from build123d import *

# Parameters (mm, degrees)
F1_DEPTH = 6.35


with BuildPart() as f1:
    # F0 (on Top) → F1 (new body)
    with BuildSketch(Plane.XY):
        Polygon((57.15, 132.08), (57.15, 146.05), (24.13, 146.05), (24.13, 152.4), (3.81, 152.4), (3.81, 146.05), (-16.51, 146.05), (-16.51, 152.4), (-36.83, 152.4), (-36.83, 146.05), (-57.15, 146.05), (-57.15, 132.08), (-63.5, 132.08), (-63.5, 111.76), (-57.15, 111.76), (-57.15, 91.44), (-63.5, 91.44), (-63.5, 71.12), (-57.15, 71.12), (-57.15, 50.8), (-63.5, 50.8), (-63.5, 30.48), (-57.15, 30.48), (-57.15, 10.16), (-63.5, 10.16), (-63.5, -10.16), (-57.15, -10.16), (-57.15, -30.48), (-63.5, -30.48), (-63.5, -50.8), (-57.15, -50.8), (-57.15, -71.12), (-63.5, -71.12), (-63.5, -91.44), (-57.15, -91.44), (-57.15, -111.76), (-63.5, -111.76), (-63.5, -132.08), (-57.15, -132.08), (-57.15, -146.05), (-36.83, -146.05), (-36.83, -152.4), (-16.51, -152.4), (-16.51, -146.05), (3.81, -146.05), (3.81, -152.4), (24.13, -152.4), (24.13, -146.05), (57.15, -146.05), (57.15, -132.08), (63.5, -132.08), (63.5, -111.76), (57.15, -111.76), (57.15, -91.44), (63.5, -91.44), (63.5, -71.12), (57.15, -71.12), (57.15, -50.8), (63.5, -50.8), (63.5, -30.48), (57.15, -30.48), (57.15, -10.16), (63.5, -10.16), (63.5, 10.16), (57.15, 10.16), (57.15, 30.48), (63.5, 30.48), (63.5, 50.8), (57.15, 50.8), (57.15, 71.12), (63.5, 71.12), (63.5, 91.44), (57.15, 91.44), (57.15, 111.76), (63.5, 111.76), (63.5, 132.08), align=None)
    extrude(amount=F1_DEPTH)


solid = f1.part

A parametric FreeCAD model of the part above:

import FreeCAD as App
import Part
import Sketcher
from FreeCAD import Vector
Q = App.Units.Quantity

doc = App.newDocument("Part")
body = doc.addObject("PartDesign::Body", "Body")

# Sketch on XY plane
sketch1 = body.newObject("Sketcher::SketchObject", "Sketch")
sketch1.AttachmentSupport = (doc.getObject("XY_Plane"), [""])
sketch1.MapMode = "FlatFace"
sketch1.addGeometry([
    Part.LineSegment(Vector(57, 132, 0), Vector(57, 146, 0)),  # 0
    Part.LineSegment(Vector(57, 146, 0), Vector(24, 146, 0)),  # 1
    Part.LineSegment(Vector(24, 146, 0), Vector(24, 152, 0)),  # 2
    Part.LineSegment(Vector(24, 152, 0), Vector(4, 152, 0)),  # 3
    Part.LineSegment(Vector(4, 152, 0), Vector(4, 146, 0)),  # 4
    Part.LineSegment(Vector(4, 146, 0), Vector(-17, 146, 0)),  # 5
    Part.LineSegment(Vector(-17, 146, 0), Vector(-17, 152, 0)),  # 6
    Part.LineSegment(Vector(-17, 152, 0), Vector(-37, 152, 0)),  # 7
    Part.LineSegment(Vector(-37, 152, 0), Vector(-37, 146, 0)),  # 8
    Part.LineSegment(Vector(-37, 146, 0), Vector(-57, 146, 0)),  # 9
    Part.LineSegment(Vector(-57, 146, 0), Vector(-57, 132, 0)),  # 10
    Part.LineSegment(Vector(-57, 132, 0), Vector(-64, 132, 0)),  # 11
    Part.LineSegment(Vector(-64, 132, 0), Vector(-64, 112, 0)),  # 12
    Part.LineSegment(Vector(-64, 112, 0), Vector(-57, 112, 0)),  # 13
    Part.LineSegment(Vector(-57, 112, 0), Vector(-57, 91, 0)),  # 14
    Part.LineSegment(Vector(-57, 91, 0), Vector(-64, 91, 0)),  # 15
    Part.LineSegment(Vector(-64, 91, 0), Vector(-64, 71, 0)),  # 16
    Part.LineSegment(Vector(-64, 71, 0), Vector(-57, 71, 0)),  # 17
    Part.LineSegment(Vector(-57, 71, 0), Vector(-57, 51, 0)),  # 18
    Part.LineSegment(Vector(-57, 51, 0), Vector(-64, 51, 0)),  # 19
    Part.LineSegment(Vector(-64, 51, 0), Vector(-64, 30, 0)),  # 20
    Part.LineSegment(Vector(-64, 30, 0), Vector(-57, 30, 0)),  # 21
    Part.LineSegment(Vector(-57, 30, 0), Vector(-57, 10, 0)),  # 22
    Part.LineSegment(Vector(-57, 10, 0), Vector(-64, 10, 0)),  # 23
    Part.LineSegment(Vector(-64, 10, 0), Vector(-64, -10, 0)),  # 24
    Part.LineSegment(Vector(-64, -10, 0), Vector(-57, -10, 0)),  # 25
    Part.LineSegment(Vector(-57, -10, 0), Vector(-57, -30, 0)),  # 26
    Part.LineSegment(Vector(-57, -30, 0), Vector(-64, -30, 0)),  # 27
    Part.LineSegment(Vector(-64, -30, 0), Vector(-64, -51, 0)),  # 28
    Part.LineSegment(Vector(-64, -51, 0), Vector(-57, -51, 0)),  # 29
    Part.LineSegment(Vector(-57, -51, 0), Vector(-57, -71, 0)),  # 30
    Part.LineSegment(Vector(-57, -71, 0), Vector(-64, -71, 0)),  # 31
    Part.LineSegment(Vector(-64, -71, 0), Vector(-64, -91, 0)),  # 32
    Part.LineSegment(Vector(-64, -91, 0), Vector(-57, -91, 0)),  # 33
    Part.LineSegment(Vector(-57, -91, 0), Vector(-57, -112, 0)),  # 34
    Part.LineSegment(Vector(-57, -112, 0), Vector(-64, -112, 0)),  # 35
    Part.LineSegment(Vector(-64, -112, 0), Vector(-64, -132, 0)),  # 36
    Part.LineSegment(Vector(-64, -132, 0), Vector(-57, -132, 0)),  # 37
    Part.LineSegment(Vector(-57, -132, 0), Vector(-57, -146, 0)),  # 38
    Part.LineSegment(Vector(-57, -146, 0), Vector(-37, -146, 0)),  # 39
    Part.LineSegment(Vector(-37, -146, 0), Vector(-37, -152, 0)),  # 40
    Part.LineSegment(Vector(-37, -152, 0), Vector(-17, -152, 0)),  # 41
    Part.LineSegment(Vector(-17, -152, 0), Vector(-17, -146, 0)),  # 42
    Part.LineSegment(Vector(-17, -146, 0), Vector(4, -146, 0)),  # 43
    Part.LineSegment(Vector(4, -146, 0), Vector(4, -152, 0)),  # 44
    Part.LineSegment(Vector(4, -152, 0), Vector(24, -152, 0)),  # 45
    Part.LineSegment(Vector(24, -152, 0), Vector(24, -146, 0)),  # 46
    Part.LineSegment(Vector(24, -146, 0), Vector(57, -146, 0)),  # 47
    Part.LineSegment(Vector(57, -146, 0), Vector(57, -132, 0)),  # 48
    Part.LineSegment(Vector(57, -132, 0), Vector(64, -132, 0)),  # 49
    Part.LineSegment(Vector(64, -132, 0), Vector(64, -112, 0)),  # 50
    Part.LineSegment(Vector(64, -112, 0), Vector(57, -112, 0)),  # 51
    Part.LineSegment(Vector(57, -112, 0), Vector(57, -91, 0)),  # 52
    Part.LineSegment(Vector(57, -91, 0), Vector(64, -91, 0)),  # 53
    Part.LineSegment(Vector(64, -91, 0), Vector(64, -71, 0)),  # 54
    Part.LineSegment(Vector(64, -71, 0), Vector(57, -71, 0)),  # 55
    Part.LineSegment(Vector(57, -71, 0), Vector(57, -51, 0)),  # 56
    Part.LineSegment(Vector(57, -51, 0), Vector(64, -51, 0)),  # 57
    Part.LineSegment(Vector(64, -51, 0), Vector(64, -30, 0)),  # 58
    Part.LineSegment(Vector(64, -30, 0), Vector(57, -30, 0)),  # 59
    Part.LineSegment(Vector(57, -30, 0), Vector(57, -10, 0)),  # 60
    Part.LineSegment(Vector(57, -10, 0), Vector(64, -10, 0)),  # 61
    Part.LineSegment(Vector(64, -10, 0), Vector(64, 10, 0)),  # 62
    Part.LineSegment(Vector(64, 10, 0), Vector(57, 10, 0)),  # 63
    Part.LineSegment(Vector(57, 10, 0), Vector(57, 30, 0)),  # 64
    Part.LineSegment(Vector(57, 30, 0), Vector(64, 30, 0)),  # 65
    Part.LineSegment(Vector(64, 30, 0), Vector(64, 51, 0)),  # 66
    Part.LineSegment(Vector(64, 51, 0), Vector(57, 51, 0)),  # 67
    Part.LineSegment(Vector(57, 51, 0), Vector(57, 71, 0)),  # 68
    Part.LineSegment(Vector(57, 71, 0), Vector(64, 71, 0)),  # 69
    Part.LineSegment(Vector(64, 71, 0), Vector(64, 91, 0)),  # 70
    Part.LineSegment(Vector(64, 91, 0), Vector(57, 91, 0)),  # 71
    Part.LineSegment(Vector(57, 91, 0), Vector(57, 112, 0)),  # 72
    Part.LineSegment(Vector(57, 112, 0), Vector(64, 112, 0)),  # 73
    Part.LineSegment(Vector(64, 112, 0), Vector(64, 132, 0)),  # 74
    Part.LineSegment(Vector(64, 132, 0), Vector(57, 132, 0)),  # 75
], False)
sketch1.addConstraint([
    Sketcher.Constraint("Coincident", 0, 2, 1, 1),
    Sketcher.Constraint("Coincident", 1, 2, 2, 1),
    Sketcher.Constraint("Coincident", 2, 2, 3, 1),
    Sketcher.Constraint("Coincident", 3, 2, 4, 1),
    Sketcher.Constraint("Coincident", 4, 2, 5, 1),
    Sketcher.Constraint("Coincident", 5, 2, 6, 1),
    Sketcher.Constraint("Coincident", 6, 2, 7, 1),
    Sketcher.Constraint("Coincident", 7, 2, 8, 1),
    Sketcher.Constraint("Coincident", 8, 2, 9, 1),
    Sketcher.Constraint("Coincident", 9, 2, 10, 1),
    Sketcher.Constraint("Coincident", 10, 2, 11, 1),
    Sketcher.Constraint("Coincident", 11, 2, 12, 1),
    Sketcher.Constraint("Coincident", 12, 2, 13, 1),
    Sketcher.Constraint("Coincident", 13, 2, 14, 1),
    Sketcher.Constraint("Coincident", 14, 2, 15, 1),
    Sketcher.Constraint("Coincident", 15, 2, 16, 1),
    Sketcher.Constraint("Coincident", 16, 2, 17, 1),
    Sketcher.Constraint("Coincident", 17, 2, 18, 1),
    Sketcher.Constraint("Coincident", 18, 2, 19, 1),
    Sketcher.Constraint("Coincident", 19, 2, 20, 1),
    Sketcher.Constraint("Coincident", 20, 2, 21, 1),
    Sketcher.Constraint("Coincident", 21, 2, 22, 1),
    Sketcher.Constraint("Coincident", 22, 2, 23, 1),
    Sketcher.Constraint("Coincident", 23, 2, 24, 1),
    Sketcher.Constraint("Coincident", 24, 2, 25, 1),
    Sketcher.Constraint("Coincident", 25, 2, 26, 1),
    Sketcher.Constraint("Coincident", 26, 2, 27, 1),
    Sketcher.Constraint("Coincident", 27, 2, 28, 1),
    Sketcher.Constraint("Coincident", 28, 2, 29, 1),
    Sketcher.Constraint("Coincident", 29, 2, 30, 1),
    Sketcher.Constraint("Coincident", 30, 2, 31, 1),
    Sketcher.Constraint("Coincident", 31, 2, 32, 1),
    Sketcher.Constraint("Coincident", 32, 2, 33, 1),
    Sketcher.Constraint("Coincident", 33, 2, 34, 1),
    Sketcher.Constraint("Coincident", 34, 2, 35, 1),
    Sketcher.Constraint("Coincident", 35, 2, 36, 1),
    Sketcher.Constraint("Coincident", 36, 2, 37, 1),
    Sketcher.Constraint("Coincident", 37, 2, 38, 1),
    Sketcher.Constraint("Coincident", 38, 2, 39, 1),
    Sketcher.Constraint("Coincident", 39, 2, 40, 1),
    Sketcher.Constraint("Coincident", 40, 2, 41, 1),
    Sketcher.Constraint("Coincident", 41, 2, 42, 1),
    Sketcher.Constraint("Coincident", 42, 2, 43, 1),
    Sketcher.Constraint("Coincident", 43, 2, 44, 1),
    Sketcher.Constraint("Coincident", 44, 2, 45, 1),
    Sketcher.Constraint("Coincident", 45, 2, 46, 1),
    Sketcher.Constraint("Coincident", 46, 2, 47, 1),
    Sketcher.Constraint("Coincident", 47, 2, 48, 1),
    Sketcher.Constraint("Coincident", 48, 2, 49, 1),
    Sketcher.Constraint("Coincident", 49, 2, 50, 1),
    Sketcher.Constraint("Coincident", 50, 2, 51, 1),
    Sketcher.Constraint("Coincident", 51, 2, 52, 1),
    Sketcher.Constraint("Coincident", 52, 2, 53, 1),
    Sketcher.Constraint("Coincident", 53, 2, 54, 1),
    Sketcher.Constraint("Coincident", 54, 2, 55, 1),
    Sketcher.Constraint("Coincident", 55, 2, 56, 1),
    Sketcher.Constraint("Coincident", 56, 2, 57, 1),
    Sketcher.Constraint("Coincident", 57, 2, 58, 1),
    Sketcher.Constraint("Coincident", 58, 2, 59, 1),
    Sketcher.Constraint("Coincident", 59, 2, 60, 1),
    Sketcher.Constraint("Coincident", 60, 2, 61, 1),
    Sketcher.Constraint("Coincident", 61, 2, 62, 1),
    Sketcher.Constraint("Coincident", 62, 2, 63, 1),
    Sketcher.Constraint("Coincident", 63, 2, 64, 1),
    Sketcher.Constraint("Coincident", 64, 2, 65, 1),
    Sketcher.Constraint("Coincident", 65, 2, 66, 1),
    Sketcher.Constraint("Coincident", 66, 2, 67, 1),
    Sketcher.Constraint("Coincident", 67, 2, 68, 1),
    Sketcher.Constraint("Coincident", 68, 2, 69, 1),
    Sketcher.Constraint("Coincident", 69, 2, 70, 1),
    Sketcher.Constraint("Coincident", 70, 2, 71, 1),
    Sketcher.Constraint("Coincident", 71, 2, 72, 1),
    Sketcher.Constraint("Coincident", 72, 2, 73, 1),
    Sketcher.Constraint("Coincident", 73, 2, 74, 1),
    Sketcher.Constraint("Coincident", 74, 2, 75, 1),
    Sketcher.Constraint("Coincident", 75, 2, 0, 1),
    Sketcher.Constraint("Vertical", 0),
    Sketcher.Constraint("Horizontal", 1),
    Sketcher.Constraint("Vertical", 2),
    Sketcher.Constraint("Horizontal", 3),
    Sketcher.Constraint("Vertical", 4),
    Sketcher.Constraint("Horizontal", 5),
    Sketcher.Constraint("Vertical", 6),
    Sketcher.Constraint("Horizontal", 7),
    Sketcher.Constraint("Vertical", 8),
    Sketcher.Constraint("Horizontal", 9),
    Sketcher.Constraint("Vertical", 10),
    Sketcher.Constraint("Horizontal", 11),
    Sketcher.Constraint("Vertical", 12),
    Sketcher.Constraint("Horizontal", 13),
    Sketcher.Constraint("Vertical", 14),
    Sketcher.Constraint("Horizontal", 15),
    Sketcher.Constraint("Vertical", 16),
    Sketcher.Constraint("Horizontal", 17),
    Sketcher.Constraint("Vertical", 18),
    Sketcher.Constraint("Horizontal", 19),
    Sketcher.Constraint("Vertical", 20),
    Sketcher.Constraint("Horizontal", 21),
    Sketcher.Constraint("Vertical", 22),
    Sketcher.Constraint("Horizontal", 23),
    Sketcher.Constraint("Vertical", 24),
    Sketcher.Constraint("Horizontal", 25),
    Sketcher.Constraint("Vertical", 26),
    Sketcher.Constraint("Horizontal", 27),
    Sketcher.Constraint("Vertical", 28),
    Sketcher.Constraint("Horizontal", 29),
    Sketcher.Constraint("Vertical", 30),
    Sketcher.Constraint("Horizontal", 31),
    Sketcher.Constraint("Vertical", 32),
    Sketcher.Constraint("Horizontal", 33),
    Sketcher.Constraint("Vertical", 34),
    Sketcher.Constraint("Horizontal", 35),
    Sketcher.Constraint("Vertical", 36),
    Sketcher.Constraint("Horizontal", 37),
    Sketcher.Constraint("Vertical", 38),
    Sketcher.Constraint("Horizontal", 39),
    Sketcher.Constraint("Vertical", 40),
    Sketcher.Constraint("Horizontal", 41),
    Sketcher.Constraint("Vertical", 42),
    Sketcher.Constraint("Horizontal", 43),
    Sketcher.Constraint("Vertical", 44),
    Sketcher.Constraint("Horizontal", 45),
    Sketcher.Constraint("Vertical", 46),
    Sketcher.Constraint("Horizontal", 47),
    Sketcher.Constraint("Vertical", 48),
    Sketcher.Constraint("Horizontal", 49),
    Sketcher.Constraint("Vertical", 50),
    Sketcher.Constraint("Horizontal", 51),
    Sketcher.Constraint("Vertical", 52),
    Sketcher.Constraint("Horizontal", 53),
    Sketcher.Constraint("Vertical", 54),
    Sketcher.Constraint("Horizontal", 55),
    Sketcher.Constraint("Vertical", 56),
    Sketcher.Constraint("Horizontal", 57),
    Sketcher.Constraint("Vertical", 58),
    Sketcher.Constraint("Horizontal", 59),
    Sketcher.Constraint("Vertical", 60),
    Sketcher.Constraint("Horizontal", 61),
    Sketcher.Constraint("Vertical", 62),
    Sketcher.Constraint("Horizontal", 63),
    Sketcher.Constraint("Vertical", 64),
    Sketcher.Constraint("Horizontal", 65),
    Sketcher.Constraint("Vertical", 66),
    Sketcher.Constraint("Horizontal", 67),
    Sketcher.Constraint("Vertical", 68),
    Sketcher.Constraint("Horizontal", 69),
    Sketcher.Constraint("Vertical", 70),
    Sketcher.Constraint("Horizontal", 71),
    Sketcher.Constraint("Vertical", 72),
    Sketcher.Constraint("Horizontal", 73),
    Sketcher.Constraint("Vertical", 74),
    Sketcher.Constraint("Horizontal", 75),
    Sketcher.Constraint("Symmetric", 0, 2, 38, 2, -1, 1),
    Sketcher.Constraint("Symmetric", 9, 2, 47, 2, -1, 1),
    Sketcher.Constraint("Symmetric", 11, 2, 49, 2, -1, 1),
    Sketcher.Constraint("Symmetric", 13, 2, 51, 2, -1, 1),
    Sketcher.Constraint("Symmetric", 15, 2, 53, 2, -1, 1),
    Sketcher.Constraint("Symmetric", 17, 2, 55, 2, -1, 1),
    Sketcher.Constraint("Symmetric", 19, 2, 57, 2, -1, 1),
    Sketcher.Constraint("Symmetric", 21, 2, 59, 2, -1, 1),
    Sketcher.Constraint("Symmetric", 23, 2, 61, 2, -1, 1),
    Sketcher.Constraint("Symmetric", 25, 2, 63, 2, -1, 1),
    Sketcher.Constraint("Symmetric", 27, 2, 65, 2, -1, 1),
    Sketcher.Constraint("Symmetric", 29, 2, 67, 2, -1, 1),
    Sketcher.Constraint("Symmetric", 31, 2, 69, 2, -1, 1),
    Sketcher.Constraint("Symmetric", 33, 2, 71, 2, -1, 1),
    Sketcher.Constraint("Symmetric", 35, 2, 73, 2, -1, 1),
    Sketcher.Constraint("Symmetric", 0, 2, 9, 2, -2),
    Sketcher.Constraint("Symmetric", 36, 2, 49, 2, -2),
    Sketcher.Constraint("Symmetric", 34, 2, 51, 2, -2),
    Sketcher.Constraint("Symmetric", 32, 2, 53, 2, -2),
    Sketcher.Constraint("Symmetric", 30, 2, 55, 2, -2),
    Sketcher.Constraint("Symmetric", 28, 2, 57, 2, -2),
    Sketcher.Constraint("Symmetric", 26, 2, 59, 2, -2),
    Sketcher.Constraint("Symmetric", 7, 2, 40, 2, -1),
    Sketcher.Constraint("Symmetric", 5, 2, 42, 2, -1),
    Sketcher.Constraint("Symmetric", 3, 2, 44, 2, -1),
    Sketcher.Constraint("Horizontal", 1, 2, 4, 2),
    Sketcher.Constraint("Horizontal", 3, 2, 6, 2),
    Sketcher.Constraint("Horizontal", 25, 2, 60, 2),
    Sketcher.Constraint("Horizontal", 11, 2, 74, 2),
    Sketcher.Constraint("Vertical", 10, 2, 13, 2),
    Sketcher.Constraint("Vertical", 12, 2, 15, 2),
    Sketcher.Constraint("Vertical", 14, 2, 17, 2),
    Sketcher.Constraint("Vertical", 16, 2, 19, 2),
    Sketcher.Constraint("Vertical", 18, 2, 21, 2),
    Sketcher.Constraint("Vertical", 20, 2, 23, 2),
    Sketcher.Constraint("Vertical", 2, 2, 45, 2),
    Sketcher.Constraint("Equal", 3, 5),
    Sketcher.Constraint("Equal", 5, 7),
    Sketcher.Constraint("Equal", 7, 9),
    Sketcher.Constraint("Equal", 75, 2),
    Sketcher.Constraint("Equal", 45, 12),
    Sketcher.Constraint("Equal", 12, 14),
    Sketcher.Constraint("Equal", 14, 16),
    Sketcher.Constraint("Equal", 16, 18),
    Sketcher.Constraint("Equal", 18, 20),
    Sketcher.Constraint("Equal", 20, 22),
    Sketcher.Constraint("Equal", 22, 24),
    Sketcher.Constraint("DistanceX", 1, 2, 1, 1, Q("1.3 in")),
    Sketcher.Constraint("DistanceX", 3, 2, 3, 1, Q("0.8 in")),
    Sketcher.Constraint("DistanceY", -1, 1, 2, 2, Q("6 in")),
    Sketcher.Constraint("DistanceX", 11, 2, 11, 1, Q("0.25 in")),
])
pad1 = body.newObject("PartDesign::Pad", "Pad")
pad1.Profile = sketch1
pad1.Length = Q("0.25 in")

doc.recompute()
